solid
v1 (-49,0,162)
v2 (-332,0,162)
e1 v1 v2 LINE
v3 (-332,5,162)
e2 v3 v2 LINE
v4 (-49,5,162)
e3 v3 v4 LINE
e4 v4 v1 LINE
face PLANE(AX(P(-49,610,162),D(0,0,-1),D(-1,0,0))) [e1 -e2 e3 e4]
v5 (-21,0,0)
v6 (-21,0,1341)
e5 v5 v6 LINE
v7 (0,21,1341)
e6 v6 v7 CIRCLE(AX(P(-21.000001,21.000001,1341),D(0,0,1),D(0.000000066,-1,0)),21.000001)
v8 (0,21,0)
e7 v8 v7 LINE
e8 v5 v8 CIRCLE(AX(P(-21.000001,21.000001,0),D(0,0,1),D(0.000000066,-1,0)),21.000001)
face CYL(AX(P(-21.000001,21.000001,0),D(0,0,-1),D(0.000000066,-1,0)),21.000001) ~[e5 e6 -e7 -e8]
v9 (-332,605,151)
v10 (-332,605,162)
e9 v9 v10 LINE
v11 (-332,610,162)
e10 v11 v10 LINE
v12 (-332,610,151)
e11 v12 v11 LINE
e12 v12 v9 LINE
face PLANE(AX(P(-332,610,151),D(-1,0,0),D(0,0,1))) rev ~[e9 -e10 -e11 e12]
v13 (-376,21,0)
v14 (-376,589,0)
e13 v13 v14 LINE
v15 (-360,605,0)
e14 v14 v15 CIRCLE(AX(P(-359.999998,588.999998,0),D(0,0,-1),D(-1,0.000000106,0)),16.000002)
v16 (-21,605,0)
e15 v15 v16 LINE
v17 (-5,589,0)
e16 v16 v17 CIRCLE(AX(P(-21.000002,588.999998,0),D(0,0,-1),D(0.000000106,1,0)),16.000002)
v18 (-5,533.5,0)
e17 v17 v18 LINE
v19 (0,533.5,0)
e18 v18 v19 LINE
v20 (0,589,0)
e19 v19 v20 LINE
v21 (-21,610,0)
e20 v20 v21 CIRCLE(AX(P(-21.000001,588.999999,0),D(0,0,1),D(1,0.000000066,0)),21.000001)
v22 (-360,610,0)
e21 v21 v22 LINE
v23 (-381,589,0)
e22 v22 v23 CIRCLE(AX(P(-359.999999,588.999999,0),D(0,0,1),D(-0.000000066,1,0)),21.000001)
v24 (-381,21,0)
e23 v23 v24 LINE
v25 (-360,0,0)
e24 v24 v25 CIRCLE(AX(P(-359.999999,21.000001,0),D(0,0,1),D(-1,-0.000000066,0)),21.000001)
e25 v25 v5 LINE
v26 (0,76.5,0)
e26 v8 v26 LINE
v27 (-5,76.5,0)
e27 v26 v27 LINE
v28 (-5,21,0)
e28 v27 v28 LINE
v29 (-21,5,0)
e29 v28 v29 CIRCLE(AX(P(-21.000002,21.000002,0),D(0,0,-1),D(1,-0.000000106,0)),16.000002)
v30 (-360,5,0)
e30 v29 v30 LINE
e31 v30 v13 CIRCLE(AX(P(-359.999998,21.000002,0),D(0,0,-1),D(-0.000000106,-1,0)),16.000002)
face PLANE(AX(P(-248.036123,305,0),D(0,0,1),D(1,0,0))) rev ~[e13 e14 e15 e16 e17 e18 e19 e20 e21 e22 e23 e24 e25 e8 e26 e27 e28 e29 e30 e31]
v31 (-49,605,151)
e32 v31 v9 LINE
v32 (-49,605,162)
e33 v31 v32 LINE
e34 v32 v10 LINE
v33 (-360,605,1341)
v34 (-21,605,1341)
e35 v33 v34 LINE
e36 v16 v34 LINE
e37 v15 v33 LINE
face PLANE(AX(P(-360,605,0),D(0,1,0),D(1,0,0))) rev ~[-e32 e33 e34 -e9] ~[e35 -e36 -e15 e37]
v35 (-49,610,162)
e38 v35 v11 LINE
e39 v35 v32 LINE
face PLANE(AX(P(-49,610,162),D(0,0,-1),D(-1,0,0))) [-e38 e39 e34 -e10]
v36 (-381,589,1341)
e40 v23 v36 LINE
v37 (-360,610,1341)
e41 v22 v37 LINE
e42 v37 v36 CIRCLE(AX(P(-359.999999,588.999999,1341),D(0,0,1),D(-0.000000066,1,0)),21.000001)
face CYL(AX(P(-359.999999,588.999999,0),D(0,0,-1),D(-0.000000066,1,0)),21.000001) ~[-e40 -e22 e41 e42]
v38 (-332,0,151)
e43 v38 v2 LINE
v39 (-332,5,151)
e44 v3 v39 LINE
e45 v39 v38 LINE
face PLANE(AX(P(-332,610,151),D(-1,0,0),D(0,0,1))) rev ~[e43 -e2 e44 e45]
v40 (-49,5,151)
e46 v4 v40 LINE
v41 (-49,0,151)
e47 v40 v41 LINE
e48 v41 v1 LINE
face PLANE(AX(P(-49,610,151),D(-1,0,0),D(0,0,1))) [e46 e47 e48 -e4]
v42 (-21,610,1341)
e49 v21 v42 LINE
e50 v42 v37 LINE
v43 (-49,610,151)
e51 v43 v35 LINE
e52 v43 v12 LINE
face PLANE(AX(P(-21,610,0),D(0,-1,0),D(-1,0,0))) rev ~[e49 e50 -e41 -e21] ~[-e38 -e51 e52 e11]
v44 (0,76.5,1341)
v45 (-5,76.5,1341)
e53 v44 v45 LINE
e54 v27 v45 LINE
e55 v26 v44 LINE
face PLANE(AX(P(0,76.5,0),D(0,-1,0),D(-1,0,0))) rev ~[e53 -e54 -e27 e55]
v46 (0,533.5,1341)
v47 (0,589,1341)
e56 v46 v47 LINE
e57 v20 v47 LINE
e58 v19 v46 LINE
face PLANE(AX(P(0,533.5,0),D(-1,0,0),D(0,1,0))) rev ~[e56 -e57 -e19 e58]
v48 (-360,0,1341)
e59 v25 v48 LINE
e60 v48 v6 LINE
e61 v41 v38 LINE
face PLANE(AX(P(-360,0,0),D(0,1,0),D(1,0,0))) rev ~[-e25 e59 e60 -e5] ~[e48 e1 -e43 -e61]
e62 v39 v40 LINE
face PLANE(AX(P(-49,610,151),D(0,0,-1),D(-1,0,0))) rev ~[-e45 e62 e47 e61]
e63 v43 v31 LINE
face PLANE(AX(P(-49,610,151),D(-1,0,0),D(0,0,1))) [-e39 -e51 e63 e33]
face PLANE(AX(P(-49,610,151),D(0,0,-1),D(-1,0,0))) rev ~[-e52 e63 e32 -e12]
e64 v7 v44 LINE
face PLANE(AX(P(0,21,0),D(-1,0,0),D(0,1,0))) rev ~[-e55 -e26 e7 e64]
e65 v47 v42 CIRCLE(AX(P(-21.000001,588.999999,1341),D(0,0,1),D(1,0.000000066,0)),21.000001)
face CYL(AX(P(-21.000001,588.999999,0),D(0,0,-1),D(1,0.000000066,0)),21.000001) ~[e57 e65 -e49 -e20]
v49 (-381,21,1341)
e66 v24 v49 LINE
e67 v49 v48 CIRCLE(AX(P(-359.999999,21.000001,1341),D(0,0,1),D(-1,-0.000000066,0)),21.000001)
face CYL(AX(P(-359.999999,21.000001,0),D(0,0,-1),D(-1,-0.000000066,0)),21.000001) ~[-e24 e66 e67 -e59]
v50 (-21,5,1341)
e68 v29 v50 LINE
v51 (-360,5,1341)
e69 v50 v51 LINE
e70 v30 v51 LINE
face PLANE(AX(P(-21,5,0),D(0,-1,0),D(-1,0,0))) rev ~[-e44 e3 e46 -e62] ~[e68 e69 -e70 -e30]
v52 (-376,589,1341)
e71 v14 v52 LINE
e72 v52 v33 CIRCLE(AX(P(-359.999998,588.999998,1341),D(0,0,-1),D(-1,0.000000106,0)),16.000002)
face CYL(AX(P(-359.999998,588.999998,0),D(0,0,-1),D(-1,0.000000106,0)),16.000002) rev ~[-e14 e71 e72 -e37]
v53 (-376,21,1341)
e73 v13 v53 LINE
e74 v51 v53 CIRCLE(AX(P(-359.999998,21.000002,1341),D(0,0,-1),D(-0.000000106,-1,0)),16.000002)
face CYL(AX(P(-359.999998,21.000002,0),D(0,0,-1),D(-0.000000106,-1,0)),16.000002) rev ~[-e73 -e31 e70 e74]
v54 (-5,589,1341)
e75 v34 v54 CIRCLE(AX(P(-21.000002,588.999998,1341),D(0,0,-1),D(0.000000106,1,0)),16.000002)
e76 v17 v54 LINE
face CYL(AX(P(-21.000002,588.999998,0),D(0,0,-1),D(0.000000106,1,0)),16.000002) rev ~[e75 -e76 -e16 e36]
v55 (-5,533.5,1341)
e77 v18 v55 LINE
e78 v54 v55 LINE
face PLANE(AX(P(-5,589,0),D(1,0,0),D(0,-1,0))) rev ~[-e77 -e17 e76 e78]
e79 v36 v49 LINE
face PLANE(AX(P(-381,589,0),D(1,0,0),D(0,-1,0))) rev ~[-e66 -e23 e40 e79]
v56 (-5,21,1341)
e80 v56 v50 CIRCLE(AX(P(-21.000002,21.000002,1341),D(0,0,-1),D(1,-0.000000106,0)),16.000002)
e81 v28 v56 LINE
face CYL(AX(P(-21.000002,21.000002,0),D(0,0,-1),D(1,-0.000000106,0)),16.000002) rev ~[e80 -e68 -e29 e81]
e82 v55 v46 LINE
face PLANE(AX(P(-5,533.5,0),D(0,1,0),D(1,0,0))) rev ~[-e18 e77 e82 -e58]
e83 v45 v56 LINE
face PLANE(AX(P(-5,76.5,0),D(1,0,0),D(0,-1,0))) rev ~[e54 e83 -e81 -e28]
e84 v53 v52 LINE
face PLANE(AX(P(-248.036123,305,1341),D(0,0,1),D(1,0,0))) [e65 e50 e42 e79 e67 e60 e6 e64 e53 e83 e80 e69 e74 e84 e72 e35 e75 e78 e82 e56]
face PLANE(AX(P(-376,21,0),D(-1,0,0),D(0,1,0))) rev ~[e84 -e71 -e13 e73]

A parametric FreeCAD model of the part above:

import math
import FreeCAD as App
import Part
import Sketcher
from FreeCAD import Vector

doc = App.newDocument("Part")
body = doc.addObject("PartDesign::Body", "Body")

sketch1 = doc.addObject("Sketcher::SketchObject", "Sketch")
body.addObject(sketch1)
sketch1.AttachmentSupport = (doc.XY_Plane, [""])
sketch1.MapMode = "FlatFace"
sketch1.addGeometry(Part.LineSegment(Vector(-360, 0, 0), Vector(-21, 0, 0)), False)
sketch1.addGeometry(Part.ArcOfCircle(Part.Circle(Vector(-21, 21, 0), Vector(0, 0, 1), 21), math.radians(-90), math.radians(0)), False)
sketch1.addGeometry(Part.LineSegment(Vector(0, 21, 0), Vector(0, 76, 0)), False)
sketch1.addGeometry(Part.LineSegment(Vector(0, 76, 0), Vector(-5, 76, 0)), False)
sketch1.addGeometry(Part.LineSegment(Vector(-5, 76, 0), Vector(-5, 21, 0)), False)
sketch1.addGeometry(Part.ArcOfCircle(Part.Circle(Vector(-21, 21, 0), Vector(0, 0, 1), 16), math.radians(-90), math.radians(0)), False)
sketch1.addGeometry(Part.LineSegment(Vector(-21, 5, 0), Vector(-360, 5, 0)), False)
sketch1.addGeometry(Part.ArcOfCircle(Part.Circle(Vector(-360, 21, 0), Vector(0, 0, 1), 16), math.radians(-180), math.radians(-90)), False)
sketch1.addGeometry(Part.LineSegment(Vector(-376, 21, 0), Vector(-376, 589, 0)), False)
sketch1.addGeometry(Part.ArcOfCircle(Part.Circle(Vector(-360, 589, 0), Vector(0, 0, 1), 16), math.radians(90), math.radians(180)), False)
sketch1.addGeometry(Part.LineSegment(Vector(-360, 605, 0), Vector(-21, 605, 0)), False)
sketch1.addGeometry(Part.ArcOfCircle(Part.Circle(Vector(-21, 589, 0), Vector(0, 0, 1), 16), math.radians(0), math.radians(90)), False)
sketch1.addGeometry(Part.LineSegment(Vector(-5, 589, 0), Vector(-5, 534, 0)), False)
sketch1.addGeometry(Part.LineSegment(Vector(-5, 534, 0), Vector(0, 534, 0)), False)
sketch1.addGeometry(Part.LineSegment(Vector(0, 534, 0), Vector(0, 589, 0)), False)
sketch1.addGeometry(Part.ArcOfCircle(Part.Circle(Vector(-21, 589, 0), Vector(0, 0, 1), 21), math.radians(0), math.radians(90)), False)
sketch1.addGeometry(Part.LineSegment(Vector(-21, 610, 0), Vector(-360, 610, 0)), False)
sketch1.addGeometry(Part.ArcOfCircle(Part.Circle(Vector(-360, 589, 0), Vector(0, 0, 1), 21), math.radians(90), math.radians(180)), False)
sketch1.addGeometry(Part.LineSegment(Vector(-381, 589, 0), Vector(-381, 21, 0)), False)
sketch1.addGeometry(Part.ArcOfCircle(Part.Circle(Vector(-360, 21, 0), Vector(0, 0, 1), 21), math.radians(-180), math.radians(-90)), False)
sketch1.addConstraint(Sketcher.Constraint("Tangent", 0, 2, 1, 1))
sketch1.addConstraint(Sketcher.Constraint("Tangent", 1, 2, 2, 1))
sketch1.addConstraint(Sketcher.Constraint("Coincident", 2, 2, 3, 1))
sketch1.addConstraint(Sketcher.Constraint("Coincident", 3, 2, 4, 1))
sketch1.addConstraint(Sketcher.Constraint("Tangent", 4, 2, 5, 2))
sketch1.addConstraint(Sketcher.Constraint("Tangent", 5, 1, 6, 1))
sketch1.addConstraint(Sketcher.Constraint("Tangent", 6, 2, 7, 2))
sketch1.addConstraint(Sketcher.Constraint("Tangent", 7, 1, 8, 1))
sketch1.addConstraint(Sketcher.Constraint("Tangent", 8, 2, 9, 2))
sketch1.addConstraint(Sketcher.Constraint("Tangent", 9, 1, 10, 1))
sketch1.addConstraint(Sketcher.Constraint("Tangent", 10, 2, 11, 2))
sketch1.addConstraint(Sketcher.Constraint("Tangent", 11, 1, 12, 1))
sketch1.addConstraint(Sketcher.Constraint("Coincident", 12, 2, 13, 1))
sketch1.addConstraint(Sketcher.Constraint("Coincident", 13, 2, 14, 1))
sketch1.addConstraint(Sketcher.Constraint("Tangent", 14, 2, 15, 1))
sketch1.addConstraint(Sketcher.Constraint("Tangent", 15, 2, 16, 1))
sketch1.addConstraint(Sketcher.Constraint("Tangent", 16, 2, 17, 1))
sketch1.addConstraint(Sketcher.Constraint("Tangent", 17, 2, 18, 1))
sketch1.addConstraint(Sketcher.Constraint("Tangent", 18, 2, 19, 1))
sketch1.addConstraint(Sketcher.Constraint("Tangent", 19, 2, 0, 1))
sketch1.addConstraint(Sketcher.Constraint("Horizontal", 0))
sketch1.addConstraint(Sketcher.Constraint("Vertical", 2))
sketch1.addConstraint(Sketcher.Constraint("Horizontal", 3))
sketch1.addConstraint(Sketcher.Constraint("Vertical", 4))
sketch1.addConstraint(Sketcher.Constraint("Horizontal", 6))
sketch1.addConstraint(Sketcher.Constraint("Vertical", 8))
sketch1.addConstraint(Sketcher.Constraint("Horizontal", 10))
sketch1.addConstraint(Sketcher.Constraint("Vertical", 12))
sketch1.addConstraint(Sketcher.Constraint("Horizontal", 13))
sketch1.addConstraint(Sketcher.Constraint("Vertical", 14))
sketch1.addConstraint(Sketcher.Constraint("Horizontal", 16))
sketch1.addConstraint(Sketcher.Constraint("Vertical", 18))
sketch1.addConstraint(Sketcher.Constraint("Coincident", 5, 3, 1, 3))
sketch1.addConstraint(Sketcher.Constraint("Coincident", 15, 3, 11, 3))
sketch1.addConstraint(Sketcher.Constraint("Coincident", 17, 3, 9, 3))
sketch1.addConstraint(Sketcher.Constraint("Coincident", 19, 3, 7, 3))
sketch1.addConstraint(Sketcher.Constraint("Equal", 5, 7))
sketch1.addConstraint(Sketcher.Constraint("Equal", 7, 9))
sketch1.addConstraint(Sketcher.Constraint("Equal", 9, 11))
sketch1.addConstraint(Sketcher.Constraint("PointOnObject", 0, 2, -1))
sketch1.addConstraint(Sketcher.Constraint("PointOnObject", 1, 2, -2))
sketch1.addConstraint(Sketcher.Constraint("PointOnObject", 13, 2, -2))
sketch1.addConstraint(Sketcher.Constraint("Equal", 4, 12))
sketch1.addConstraint(Sketcher.Constraint("Radius", 1, 21.000001))
sketch1.addConstraint(Sketcher.Constraint("Radius", 5, 16.000002))
sketch1.addConstraint(Sketcher.Constraint("DistanceX", 0, 1, 0, 2, 339.0))
sketch1.addConstraint(Sketcher.Constraint("DistanceY", 8, 1, 8, 2, 568.0))
sketch1.addConstraint(Sketcher.Constraint("DistanceY", 2, 1, 2, 2, 55.5))
pad1 = doc.addObject("PartDesign::Pad", "Pad")
body.addObject(pad1)
pad1.Profile = sketch1
pad1.Length = 1341

sketch2 = doc.addObject("Sketcher::SketchObject", "Sketch001")
body.addObject(sketch2)
sketch2.AttachmentSupport = (doc.XZ_Plane, [""])
sketch2.MapMode = "FlatFace"
sketch2.AttachmentOffset = App.Placement(Vector(0, 0, -610), App.Rotation())
sketch2.addGeometry(Part.LineSegment(Vector(-49, 162, 0), Vector(-49, 151, 0)), False)
sketch2.addGeometry(Part.LineSegment(Vector(-49, 151, 0), Vector(-332, 151, 0)), False)
sketch2.addGeometry(Part.LineSegment(Vector(-332, 151, 0), Vector(-332, 162, 0)), False)
sketch2.addGeometry(Part.LineSegment(Vector(-332, 162, 0), Vector(-49, 162, 0)), False)
sketch2.addConstraint(Sketcher.Constraint("Coincident", 0, 2, 1, 1))
sketch2.addConstraint(Sketcher.Constraint("Coincident", 1, 2, 2, 1))
sketch2.addConstraint(Sketcher.Constraint("Coincident", 2, 2, 3, 1))
sketch2.addConstraint(Sketcher.Constraint("Coincident", 3, 2, 0, 1))
sketch2.addConstraint(Sketcher.Constraint("Vertical", 0))
sketch2.addConstraint(Sketcher.Constraint("Horizontal", 1))
sketch2.addConstraint(Sketcher.Constraint("Vertical", 2))
sketch2.addConstraint(Sketcher.Constraint("Horizontal", 3))
sketch2.addConstraint(Sketcher.Constraint("DistanceX", 1, 2, 1, 1, 283.0))
sketch2.addConstraint(Sketcher.Constraint("DistanceY", 0, 2, 0, 1, 11.0))
sketch2.addConstraint(Sketcher.Constraint("DistanceX", 0, 2, -1, 1, 49.0))
sketch2.addConstraint(Sketcher.Constraint("DistanceY", -1, 1, 0, 2, 151.0))
pocket1 = doc.addObject("PartDesign::Pocket", "Pocket")
body.addObject(pocket1)
pocket1.Profile = sketch2
pocket1.Type = "ThroughAll"
pocket1.Reversed = True

doc.recompute()
